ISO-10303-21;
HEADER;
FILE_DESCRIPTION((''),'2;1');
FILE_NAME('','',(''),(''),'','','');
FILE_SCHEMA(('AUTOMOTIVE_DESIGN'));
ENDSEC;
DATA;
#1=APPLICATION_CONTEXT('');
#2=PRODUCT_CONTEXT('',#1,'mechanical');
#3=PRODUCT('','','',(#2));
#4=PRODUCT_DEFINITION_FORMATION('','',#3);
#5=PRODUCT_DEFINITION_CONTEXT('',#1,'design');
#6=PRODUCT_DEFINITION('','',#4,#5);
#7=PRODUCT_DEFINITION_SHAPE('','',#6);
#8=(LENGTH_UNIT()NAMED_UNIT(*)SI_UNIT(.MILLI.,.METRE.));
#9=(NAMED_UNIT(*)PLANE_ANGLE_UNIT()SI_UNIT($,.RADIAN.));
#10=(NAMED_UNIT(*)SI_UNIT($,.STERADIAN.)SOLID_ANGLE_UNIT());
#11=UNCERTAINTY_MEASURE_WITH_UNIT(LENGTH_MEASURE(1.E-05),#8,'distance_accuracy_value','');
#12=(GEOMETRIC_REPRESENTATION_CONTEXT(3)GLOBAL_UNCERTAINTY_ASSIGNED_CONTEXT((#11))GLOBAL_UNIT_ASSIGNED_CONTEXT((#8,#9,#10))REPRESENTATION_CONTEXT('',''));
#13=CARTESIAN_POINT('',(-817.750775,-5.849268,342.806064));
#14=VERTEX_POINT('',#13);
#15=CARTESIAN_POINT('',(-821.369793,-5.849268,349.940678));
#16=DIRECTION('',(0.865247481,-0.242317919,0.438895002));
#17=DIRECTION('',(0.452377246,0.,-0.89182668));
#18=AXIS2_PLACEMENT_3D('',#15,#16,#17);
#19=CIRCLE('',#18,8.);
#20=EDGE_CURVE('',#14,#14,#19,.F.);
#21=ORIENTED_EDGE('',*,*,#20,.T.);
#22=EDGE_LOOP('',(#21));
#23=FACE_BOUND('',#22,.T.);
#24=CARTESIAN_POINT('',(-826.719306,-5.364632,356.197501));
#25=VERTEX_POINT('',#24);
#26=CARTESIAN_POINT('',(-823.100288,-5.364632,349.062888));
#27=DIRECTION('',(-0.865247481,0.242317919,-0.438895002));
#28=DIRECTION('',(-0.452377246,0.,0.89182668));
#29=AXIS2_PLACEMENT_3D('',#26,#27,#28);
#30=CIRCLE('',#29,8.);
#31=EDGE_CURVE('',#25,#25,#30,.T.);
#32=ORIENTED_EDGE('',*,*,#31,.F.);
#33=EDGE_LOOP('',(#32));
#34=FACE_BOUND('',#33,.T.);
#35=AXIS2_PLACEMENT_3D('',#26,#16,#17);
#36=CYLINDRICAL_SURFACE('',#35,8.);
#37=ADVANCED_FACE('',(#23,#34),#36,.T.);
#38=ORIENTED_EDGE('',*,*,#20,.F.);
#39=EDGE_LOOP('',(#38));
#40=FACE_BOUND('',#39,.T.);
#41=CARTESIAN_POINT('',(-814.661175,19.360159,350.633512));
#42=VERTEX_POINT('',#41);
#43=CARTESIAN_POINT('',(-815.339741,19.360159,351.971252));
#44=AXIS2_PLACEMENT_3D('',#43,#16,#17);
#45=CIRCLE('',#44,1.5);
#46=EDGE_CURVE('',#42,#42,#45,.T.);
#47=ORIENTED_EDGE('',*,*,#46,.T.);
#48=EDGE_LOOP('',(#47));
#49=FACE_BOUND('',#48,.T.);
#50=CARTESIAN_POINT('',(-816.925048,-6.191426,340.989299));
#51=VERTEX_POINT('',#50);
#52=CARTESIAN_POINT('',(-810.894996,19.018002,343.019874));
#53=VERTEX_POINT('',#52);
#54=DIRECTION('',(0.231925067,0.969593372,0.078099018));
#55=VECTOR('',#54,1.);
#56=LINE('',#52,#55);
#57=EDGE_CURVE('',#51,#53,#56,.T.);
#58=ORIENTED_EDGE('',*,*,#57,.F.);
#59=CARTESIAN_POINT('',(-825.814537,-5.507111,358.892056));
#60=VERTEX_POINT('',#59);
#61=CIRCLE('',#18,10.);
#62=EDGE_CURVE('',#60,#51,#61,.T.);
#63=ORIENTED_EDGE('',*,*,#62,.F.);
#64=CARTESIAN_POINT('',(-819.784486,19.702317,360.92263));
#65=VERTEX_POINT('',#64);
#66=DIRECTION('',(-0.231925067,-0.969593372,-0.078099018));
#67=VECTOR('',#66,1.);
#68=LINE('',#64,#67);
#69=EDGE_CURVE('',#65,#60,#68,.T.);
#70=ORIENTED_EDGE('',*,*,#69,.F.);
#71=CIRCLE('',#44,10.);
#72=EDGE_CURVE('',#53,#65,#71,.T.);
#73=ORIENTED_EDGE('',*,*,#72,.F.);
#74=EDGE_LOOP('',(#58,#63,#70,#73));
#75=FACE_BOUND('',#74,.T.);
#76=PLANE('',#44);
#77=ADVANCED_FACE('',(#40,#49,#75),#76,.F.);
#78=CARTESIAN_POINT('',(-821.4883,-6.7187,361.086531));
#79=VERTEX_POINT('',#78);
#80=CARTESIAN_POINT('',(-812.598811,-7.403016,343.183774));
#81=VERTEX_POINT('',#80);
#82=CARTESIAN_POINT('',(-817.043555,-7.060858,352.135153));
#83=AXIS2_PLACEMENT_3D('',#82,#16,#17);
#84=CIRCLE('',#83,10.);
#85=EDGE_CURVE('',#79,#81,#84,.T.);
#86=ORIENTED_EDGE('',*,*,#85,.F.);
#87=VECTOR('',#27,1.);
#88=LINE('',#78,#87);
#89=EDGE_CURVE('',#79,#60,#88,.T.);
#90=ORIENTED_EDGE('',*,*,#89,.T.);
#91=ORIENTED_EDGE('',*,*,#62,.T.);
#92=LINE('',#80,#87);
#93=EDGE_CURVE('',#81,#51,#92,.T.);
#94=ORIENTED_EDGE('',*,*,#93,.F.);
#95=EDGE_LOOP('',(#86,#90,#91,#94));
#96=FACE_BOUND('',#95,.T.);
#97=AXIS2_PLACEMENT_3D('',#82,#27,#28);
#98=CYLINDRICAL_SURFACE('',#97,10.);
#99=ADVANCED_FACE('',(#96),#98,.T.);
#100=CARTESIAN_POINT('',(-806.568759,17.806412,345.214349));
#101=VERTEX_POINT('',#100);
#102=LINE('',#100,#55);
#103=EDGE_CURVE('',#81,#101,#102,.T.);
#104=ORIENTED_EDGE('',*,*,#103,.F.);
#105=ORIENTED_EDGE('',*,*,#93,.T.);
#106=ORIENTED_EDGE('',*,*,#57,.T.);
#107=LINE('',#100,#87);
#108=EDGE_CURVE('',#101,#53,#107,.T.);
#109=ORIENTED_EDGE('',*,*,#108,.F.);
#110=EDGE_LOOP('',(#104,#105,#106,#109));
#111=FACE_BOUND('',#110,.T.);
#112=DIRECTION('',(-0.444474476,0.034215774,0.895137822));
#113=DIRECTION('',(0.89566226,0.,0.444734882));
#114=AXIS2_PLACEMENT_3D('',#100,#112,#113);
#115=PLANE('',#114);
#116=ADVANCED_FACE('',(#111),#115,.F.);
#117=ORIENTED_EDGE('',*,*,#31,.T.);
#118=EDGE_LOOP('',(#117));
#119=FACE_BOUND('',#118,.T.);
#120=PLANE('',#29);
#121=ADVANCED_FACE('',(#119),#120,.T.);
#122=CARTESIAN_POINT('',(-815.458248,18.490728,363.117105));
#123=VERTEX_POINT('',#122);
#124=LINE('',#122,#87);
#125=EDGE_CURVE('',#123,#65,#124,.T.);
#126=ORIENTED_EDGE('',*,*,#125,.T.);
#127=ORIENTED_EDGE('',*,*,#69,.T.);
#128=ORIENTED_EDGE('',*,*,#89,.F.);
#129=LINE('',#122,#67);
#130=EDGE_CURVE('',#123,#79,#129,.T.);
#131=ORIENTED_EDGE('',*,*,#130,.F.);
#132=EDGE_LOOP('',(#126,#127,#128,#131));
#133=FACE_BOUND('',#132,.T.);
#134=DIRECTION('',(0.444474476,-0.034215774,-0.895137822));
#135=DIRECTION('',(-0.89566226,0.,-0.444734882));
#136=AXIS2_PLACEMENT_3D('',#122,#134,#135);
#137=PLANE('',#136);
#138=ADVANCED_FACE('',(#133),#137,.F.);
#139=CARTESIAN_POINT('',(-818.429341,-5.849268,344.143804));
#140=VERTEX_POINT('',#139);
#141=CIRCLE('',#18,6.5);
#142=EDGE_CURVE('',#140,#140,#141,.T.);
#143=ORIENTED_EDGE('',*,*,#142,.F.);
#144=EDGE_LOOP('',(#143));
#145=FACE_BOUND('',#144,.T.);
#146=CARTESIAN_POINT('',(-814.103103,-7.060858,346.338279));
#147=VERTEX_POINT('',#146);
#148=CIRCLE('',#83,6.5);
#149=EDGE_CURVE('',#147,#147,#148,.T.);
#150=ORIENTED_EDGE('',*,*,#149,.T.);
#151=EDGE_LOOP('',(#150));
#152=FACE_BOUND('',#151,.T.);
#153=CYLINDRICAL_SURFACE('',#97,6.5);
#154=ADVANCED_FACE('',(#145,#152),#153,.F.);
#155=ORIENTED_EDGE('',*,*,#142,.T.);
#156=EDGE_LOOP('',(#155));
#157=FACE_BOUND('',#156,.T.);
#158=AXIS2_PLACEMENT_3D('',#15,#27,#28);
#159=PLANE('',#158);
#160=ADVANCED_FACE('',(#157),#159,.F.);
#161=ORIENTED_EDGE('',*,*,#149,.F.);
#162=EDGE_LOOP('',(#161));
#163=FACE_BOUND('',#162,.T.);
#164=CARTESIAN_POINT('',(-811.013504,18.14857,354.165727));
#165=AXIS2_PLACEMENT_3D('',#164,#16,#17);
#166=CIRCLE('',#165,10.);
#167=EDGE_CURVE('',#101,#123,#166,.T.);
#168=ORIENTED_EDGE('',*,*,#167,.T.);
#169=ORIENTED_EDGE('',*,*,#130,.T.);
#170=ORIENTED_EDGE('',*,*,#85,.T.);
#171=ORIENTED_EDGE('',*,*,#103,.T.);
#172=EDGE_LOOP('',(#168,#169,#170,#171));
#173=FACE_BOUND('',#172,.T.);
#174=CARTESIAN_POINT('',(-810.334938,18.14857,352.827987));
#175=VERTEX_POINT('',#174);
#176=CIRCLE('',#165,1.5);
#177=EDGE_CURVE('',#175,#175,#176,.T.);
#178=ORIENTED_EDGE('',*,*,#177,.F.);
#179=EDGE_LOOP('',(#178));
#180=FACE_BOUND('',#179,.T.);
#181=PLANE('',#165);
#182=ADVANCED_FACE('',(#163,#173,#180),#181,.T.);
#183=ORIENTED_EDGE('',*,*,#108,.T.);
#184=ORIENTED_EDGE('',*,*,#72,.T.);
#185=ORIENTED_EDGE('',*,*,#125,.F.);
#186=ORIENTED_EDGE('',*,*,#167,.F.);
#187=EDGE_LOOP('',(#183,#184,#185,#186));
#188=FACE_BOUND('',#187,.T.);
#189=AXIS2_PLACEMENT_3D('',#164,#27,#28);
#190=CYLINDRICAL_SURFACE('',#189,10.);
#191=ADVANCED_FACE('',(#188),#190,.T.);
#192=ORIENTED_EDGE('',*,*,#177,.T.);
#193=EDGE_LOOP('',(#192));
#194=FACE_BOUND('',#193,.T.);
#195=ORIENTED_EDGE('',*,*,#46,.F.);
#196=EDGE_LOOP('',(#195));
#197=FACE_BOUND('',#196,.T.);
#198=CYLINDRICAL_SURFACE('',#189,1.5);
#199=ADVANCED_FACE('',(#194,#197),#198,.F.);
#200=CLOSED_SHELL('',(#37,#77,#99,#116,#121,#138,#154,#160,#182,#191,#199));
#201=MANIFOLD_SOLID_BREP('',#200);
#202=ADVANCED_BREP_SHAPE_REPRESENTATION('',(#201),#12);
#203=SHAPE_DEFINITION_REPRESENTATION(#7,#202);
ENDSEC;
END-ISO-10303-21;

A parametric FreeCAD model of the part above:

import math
import FreeCAD as App
import Part
import Sketcher
Q = App.Units.Quantity

doc = App.newDocument("Part")
body = doc.addObject("PartDesign::Body", "Body")

sketch1 = doc.addObject("Sketcher::SketchObject", "Sketch")
body.addObject(sketch1)
sketch1.Placement = App.Placement(App.Vector(-480.80379, 134.652081, -243.886731), App.Rotation(App.Vector(0.444474476, -0.034215774, -0.895137822), App.Vector(0.231925066, 0.969593372, 0.078099018), App.Vector(0.865247481, -0.242317919, 0.438895002), "ZXY"))
sketch1.addGeometry([
    Part.LineSegment(App.Vector(-688.1, -142.8, 0), App.Vector(-688.1, -168.8, 0)),
    Part.ArcOfCircle(Part.Circle(App.Vector(-678.1, -168.8, 0), App.Vector(0, 0, 1), 10), math.radians(180), math.radians(360)),
    Part.LineSegment(App.Vector(-668.1, -168.8, 0), App.Vector(-668.1, -142.8, 0)),
    Part.ArcOfCircle(Part.Circle(App.Vector(-678.1, -142.8, 0), App.Vector(0, 0, 1), 10), math.radians(0), math.radians(180)),
    Part.Circle(App.Vector(-678.1, -168.8, 0), App.Vector(0, 0, 1), 6.5),
    Part.Circle(App.Vector(-678.1, -142.8, 0), App.Vector(0, 0, 1), 1.5),
], False)
sketch1.addConstraint([
    Sketcher.Constraint("Tangent", 0, 2, 1, 1),
    Sketcher.Constraint("Tangent", 1, 2, 2, 1),
    Sketcher.Constraint("Tangent", 2, 2, 3, 1),
    Sketcher.Constraint("Tangent", 3, 2, 0, 1),
    Sketcher.Constraint("Vertical", 0),
    Sketcher.Constraint("Vertical", 2),
    Sketcher.Constraint("Coincident", 4, 3, 1, 3),
    Sketcher.Constraint("Coincident", 5, 3, 3, 3),
    Sketcher.Constraint("Diameter", 4, Q("13 mm")),
    Sketcher.Constraint("Diameter", 5, Q("3 mm")),
    Sketcher.Constraint("Radius", 1, Q("10 mm")),
    Sketcher.Constraint("DistanceY", 0, 2, 0, 1, Q("26 mm")),
    Sketcher.Constraint("DistanceX", 1, 3, -1, 1, Q("678.122907 mm")),
    Sketcher.Constraint("DistanceY", 1, 3, -1, 1, Q("168.837632 mm")),
])
pad1 = doc.addObject("PartDesign::Pad", "Pad")
body.addObject(pad1)
pad1.Profile = sketch1
pad1.Length = 5

sketch2 = doc.addObject("Sketcher::SketchObject", "Sketch001")
body.addObject(sketch2)
sketch2.Placement = App.Placement(App.Vector(-480.80379, 134.652081, -243.886731), App.Rotation(App.Vector(0.105814092, 0.943980715, 0.31257605), App.Vector(0.490051196, 0.224014364, -0.842417586), App.Vector(-0.865247481, 0.242317919, -0.438895002), "ZXY"))
sketch2.addGeometry(Part.Circle(App.Vector(17, -699, 0), App.Vector(0, 0, 1), 8), False)
sketch2.addConstraint([
    Sketcher.Constraint("Diameter", 0, Q("16 mm")),
    Sketcher.Constraint("DistanceX", -1, 1, 0, 3, Q("16.948979 mm")),
    Sketcher.Constraint("DistanceY", 0, 3, -1, 1, Q("698.61975 mm")),
])
pad2 = doc.addObject("PartDesign::Pad", "Pad001")
body.addObject(pad2)
pad2.Profile = sketch2
pad2.Length = 2

doc.recompute()
